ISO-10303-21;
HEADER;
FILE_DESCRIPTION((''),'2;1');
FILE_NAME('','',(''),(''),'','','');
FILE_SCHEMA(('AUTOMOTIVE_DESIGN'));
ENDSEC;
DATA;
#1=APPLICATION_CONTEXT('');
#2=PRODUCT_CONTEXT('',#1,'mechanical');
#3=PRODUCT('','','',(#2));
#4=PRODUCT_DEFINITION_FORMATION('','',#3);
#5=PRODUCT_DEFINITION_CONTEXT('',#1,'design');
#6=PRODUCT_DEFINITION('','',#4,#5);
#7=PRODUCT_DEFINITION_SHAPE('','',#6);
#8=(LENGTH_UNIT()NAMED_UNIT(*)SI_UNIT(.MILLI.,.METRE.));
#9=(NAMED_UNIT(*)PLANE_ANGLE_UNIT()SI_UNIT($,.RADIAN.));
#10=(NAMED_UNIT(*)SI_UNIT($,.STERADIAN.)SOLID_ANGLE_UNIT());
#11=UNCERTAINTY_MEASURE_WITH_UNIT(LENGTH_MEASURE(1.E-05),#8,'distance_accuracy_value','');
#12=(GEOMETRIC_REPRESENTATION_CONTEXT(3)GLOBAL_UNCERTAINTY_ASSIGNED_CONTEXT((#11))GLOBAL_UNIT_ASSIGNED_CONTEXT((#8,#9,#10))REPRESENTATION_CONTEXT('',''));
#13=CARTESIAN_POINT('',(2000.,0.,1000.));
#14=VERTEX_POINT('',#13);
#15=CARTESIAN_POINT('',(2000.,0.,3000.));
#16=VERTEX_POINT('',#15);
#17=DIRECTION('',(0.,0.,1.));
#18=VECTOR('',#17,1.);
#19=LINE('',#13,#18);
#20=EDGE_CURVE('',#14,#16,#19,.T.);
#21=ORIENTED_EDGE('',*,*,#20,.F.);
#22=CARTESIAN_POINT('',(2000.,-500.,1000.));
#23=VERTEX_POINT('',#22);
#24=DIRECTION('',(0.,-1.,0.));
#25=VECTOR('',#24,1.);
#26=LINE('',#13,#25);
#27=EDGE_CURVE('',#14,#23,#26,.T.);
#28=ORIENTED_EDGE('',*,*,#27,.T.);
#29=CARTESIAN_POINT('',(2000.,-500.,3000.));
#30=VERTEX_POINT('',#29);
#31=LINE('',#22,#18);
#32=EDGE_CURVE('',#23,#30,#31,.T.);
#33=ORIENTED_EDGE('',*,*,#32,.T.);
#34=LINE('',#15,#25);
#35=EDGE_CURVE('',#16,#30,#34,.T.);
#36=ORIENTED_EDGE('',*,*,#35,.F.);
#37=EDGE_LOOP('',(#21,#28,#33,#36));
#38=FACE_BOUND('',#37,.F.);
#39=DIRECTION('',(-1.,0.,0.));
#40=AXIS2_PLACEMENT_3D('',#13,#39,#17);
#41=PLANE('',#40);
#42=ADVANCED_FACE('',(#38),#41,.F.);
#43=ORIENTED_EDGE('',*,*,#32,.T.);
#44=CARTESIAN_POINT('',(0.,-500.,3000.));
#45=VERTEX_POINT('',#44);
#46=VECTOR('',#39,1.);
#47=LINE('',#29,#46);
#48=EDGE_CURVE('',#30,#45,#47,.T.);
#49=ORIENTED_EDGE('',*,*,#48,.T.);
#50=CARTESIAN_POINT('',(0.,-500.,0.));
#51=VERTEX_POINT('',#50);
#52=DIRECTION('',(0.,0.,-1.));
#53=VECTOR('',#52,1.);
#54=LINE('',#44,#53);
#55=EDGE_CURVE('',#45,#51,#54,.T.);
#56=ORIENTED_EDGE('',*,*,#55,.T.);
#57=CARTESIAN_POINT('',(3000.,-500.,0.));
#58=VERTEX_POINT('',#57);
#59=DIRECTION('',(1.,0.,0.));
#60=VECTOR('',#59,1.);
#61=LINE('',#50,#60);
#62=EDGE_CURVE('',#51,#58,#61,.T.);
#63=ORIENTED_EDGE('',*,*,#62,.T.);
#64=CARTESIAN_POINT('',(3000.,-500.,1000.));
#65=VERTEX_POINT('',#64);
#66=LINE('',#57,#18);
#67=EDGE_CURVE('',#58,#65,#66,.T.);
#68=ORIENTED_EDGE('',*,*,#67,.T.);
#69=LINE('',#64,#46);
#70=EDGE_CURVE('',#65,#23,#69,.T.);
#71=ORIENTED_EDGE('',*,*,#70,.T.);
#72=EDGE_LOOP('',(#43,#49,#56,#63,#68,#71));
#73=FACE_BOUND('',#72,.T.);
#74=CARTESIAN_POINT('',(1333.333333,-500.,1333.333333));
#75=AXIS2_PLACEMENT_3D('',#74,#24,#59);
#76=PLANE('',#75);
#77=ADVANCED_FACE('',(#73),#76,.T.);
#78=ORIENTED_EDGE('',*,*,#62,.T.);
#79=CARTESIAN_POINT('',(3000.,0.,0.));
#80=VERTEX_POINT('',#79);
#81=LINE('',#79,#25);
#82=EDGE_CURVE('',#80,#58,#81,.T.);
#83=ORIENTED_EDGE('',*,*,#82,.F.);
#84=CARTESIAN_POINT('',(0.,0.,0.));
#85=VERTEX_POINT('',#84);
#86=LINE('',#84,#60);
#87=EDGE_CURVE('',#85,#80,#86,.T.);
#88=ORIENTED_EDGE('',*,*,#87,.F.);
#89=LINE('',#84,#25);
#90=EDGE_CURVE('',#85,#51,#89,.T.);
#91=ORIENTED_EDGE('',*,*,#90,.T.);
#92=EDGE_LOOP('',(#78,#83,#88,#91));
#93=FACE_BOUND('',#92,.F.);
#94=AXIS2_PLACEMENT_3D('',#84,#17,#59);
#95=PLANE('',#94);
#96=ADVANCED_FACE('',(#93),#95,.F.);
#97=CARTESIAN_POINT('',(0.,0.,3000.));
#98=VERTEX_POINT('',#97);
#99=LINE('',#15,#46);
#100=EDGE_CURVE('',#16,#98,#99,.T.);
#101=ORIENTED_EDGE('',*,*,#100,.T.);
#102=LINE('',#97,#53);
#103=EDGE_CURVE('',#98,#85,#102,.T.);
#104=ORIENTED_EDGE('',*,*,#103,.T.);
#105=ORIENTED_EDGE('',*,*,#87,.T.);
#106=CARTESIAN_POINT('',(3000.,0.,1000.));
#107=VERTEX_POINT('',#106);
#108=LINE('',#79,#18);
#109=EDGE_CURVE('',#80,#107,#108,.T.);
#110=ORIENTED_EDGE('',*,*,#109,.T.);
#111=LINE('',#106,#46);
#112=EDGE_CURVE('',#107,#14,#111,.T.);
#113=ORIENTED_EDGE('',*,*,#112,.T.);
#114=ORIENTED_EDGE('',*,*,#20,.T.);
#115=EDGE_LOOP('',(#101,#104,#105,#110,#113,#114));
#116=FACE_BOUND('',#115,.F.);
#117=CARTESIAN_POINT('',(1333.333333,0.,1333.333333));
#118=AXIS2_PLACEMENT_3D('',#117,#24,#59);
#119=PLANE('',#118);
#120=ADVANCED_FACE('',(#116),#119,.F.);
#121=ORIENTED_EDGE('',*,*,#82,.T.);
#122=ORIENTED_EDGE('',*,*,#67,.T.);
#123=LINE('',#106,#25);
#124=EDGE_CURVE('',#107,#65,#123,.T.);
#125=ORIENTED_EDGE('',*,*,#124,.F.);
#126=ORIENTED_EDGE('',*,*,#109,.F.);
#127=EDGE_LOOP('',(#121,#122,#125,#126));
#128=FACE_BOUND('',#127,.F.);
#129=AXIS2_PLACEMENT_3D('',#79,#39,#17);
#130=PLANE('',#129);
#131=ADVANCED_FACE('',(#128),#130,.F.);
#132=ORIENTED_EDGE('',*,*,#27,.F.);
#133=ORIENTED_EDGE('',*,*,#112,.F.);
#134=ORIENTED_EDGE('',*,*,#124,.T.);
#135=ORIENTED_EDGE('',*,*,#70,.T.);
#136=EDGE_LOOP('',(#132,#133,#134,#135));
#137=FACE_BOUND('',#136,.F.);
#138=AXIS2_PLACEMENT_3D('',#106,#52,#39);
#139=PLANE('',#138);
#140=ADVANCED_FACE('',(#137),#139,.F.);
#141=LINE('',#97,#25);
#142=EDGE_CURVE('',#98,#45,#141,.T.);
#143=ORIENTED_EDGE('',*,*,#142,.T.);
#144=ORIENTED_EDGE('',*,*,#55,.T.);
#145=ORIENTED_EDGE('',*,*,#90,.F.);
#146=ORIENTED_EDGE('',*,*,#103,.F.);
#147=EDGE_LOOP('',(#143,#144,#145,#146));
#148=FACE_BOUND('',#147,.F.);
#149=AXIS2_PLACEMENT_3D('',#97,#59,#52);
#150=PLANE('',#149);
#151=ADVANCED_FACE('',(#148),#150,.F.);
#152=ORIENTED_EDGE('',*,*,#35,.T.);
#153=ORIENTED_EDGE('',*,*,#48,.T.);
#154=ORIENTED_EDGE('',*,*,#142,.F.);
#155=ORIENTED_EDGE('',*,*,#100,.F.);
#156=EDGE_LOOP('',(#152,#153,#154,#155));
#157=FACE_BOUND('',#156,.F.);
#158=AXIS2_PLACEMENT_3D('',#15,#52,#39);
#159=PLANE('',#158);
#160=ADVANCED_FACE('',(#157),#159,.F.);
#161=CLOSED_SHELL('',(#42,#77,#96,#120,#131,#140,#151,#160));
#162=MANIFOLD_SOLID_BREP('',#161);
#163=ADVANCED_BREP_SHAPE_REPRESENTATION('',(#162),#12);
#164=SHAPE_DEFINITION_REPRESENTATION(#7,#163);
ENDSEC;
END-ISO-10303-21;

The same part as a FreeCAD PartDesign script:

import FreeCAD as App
import Part
import Sketcher

doc = App.newDocument("Part")
body = doc.addObject("PartDesign::Body", "Body")

# Sketch on XZ plane
sketch1 = body.newObject("Sketcher::SketchObject", "Sketch")
sketch1.AttachmentSupport = (doc.getObject("XZ_Plane"), [""])
sketch1.MapMode = "FlatFace"
sketch1.addGeometry([
    Part.LineSegment(App.Vector(0, 0, 0), App.Vector(3000, 0, 0)),  # 0
    Part.LineSegment(App.Vector(3000, 0, 0), App.Vector(3000, 1000, 0)),  # 1
    Part.LineSegment(App.Vector(3000, 1000, 0), App.Vector(2000, 1000, 0)),  # 2
    Part.LineSegment(App.Vector(2000, 1000, 0), App.Vector(2000, 3000, 0)),  # 3
    Part.LineSegment(App.Vector(2000, 3000, 0), App.Vector(0, 3000, 0)),  # 4
    Part.LineSegment(App.Vector(0, 3000, 0), App.Vector(0, 0, 0)),  # 5
], False)
sketch1.addConstraint([
    Sketcher.Constraint("Coincident", 0, 2, 1, 1),
    Sketcher.Constraint("Coincident", 1, 2, 2, 1),
    Sketcher.Constraint("Coincident", 2, 2, 3, 1),
    Sketcher.Constraint("Coincident", 3, 2, 4, 1),
    Sketcher.Constraint("Coincident", 4, 2, 5, 1),
    Sketcher.Constraint("Coincident", 5, 2, 0, 1),
    Sketcher.Constraint("Horizontal", 0),
    Sketcher.Constraint("Vertical", 1),
    Sketcher.Constraint("Horizontal", 2),
    Sketcher.Constraint("Vertical", 3),
    Sketcher.Constraint("Horizontal", 4),
    Sketcher.Constraint("Vertical", 5),
    Sketcher.Constraint("Coincident", 5, 2, -1, 1),
    Sketcher.Constraint("Equal", 2, 1),
    Sketcher.Constraint("Equal", 4, 3),
    Sketcher.Constraint("DistanceX", 0, 1, 0, 2, 3000.0),
    Sketcher.Constraint("DistanceX", 2, 2, 2, 1, 1000.0),
])
pad1 = body.newObject("PartDesign::Pad", "Pad")
pad1.Profile = sketch1
pad1.Length = 500

doc.recompute()
